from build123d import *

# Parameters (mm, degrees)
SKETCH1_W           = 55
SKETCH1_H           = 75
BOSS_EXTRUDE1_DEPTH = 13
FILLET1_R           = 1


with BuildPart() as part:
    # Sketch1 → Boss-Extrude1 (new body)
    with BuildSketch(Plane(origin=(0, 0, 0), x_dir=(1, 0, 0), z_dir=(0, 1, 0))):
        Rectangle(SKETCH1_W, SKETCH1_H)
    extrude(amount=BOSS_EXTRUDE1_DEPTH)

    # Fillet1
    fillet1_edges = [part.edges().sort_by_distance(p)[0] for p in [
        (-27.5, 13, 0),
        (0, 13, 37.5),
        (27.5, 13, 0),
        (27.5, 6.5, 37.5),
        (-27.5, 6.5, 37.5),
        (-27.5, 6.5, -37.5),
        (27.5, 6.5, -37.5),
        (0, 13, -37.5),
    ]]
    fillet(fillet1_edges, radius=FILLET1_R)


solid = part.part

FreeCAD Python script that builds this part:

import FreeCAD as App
import Part
import Sketcher

V = App.Vector
Q = App.Units.Quantity


def edges_at(feature, points):
    """Names of the edges that pass closest to the given points."""
    edges = feature.Shape.Edges
    near = lambda p: min(range(len(edges)), key=lambda i: edges[i].distToShape(Part.Vertex(*p))[0])
    return sorted({f"Edge{near(p) + 1}" for p in points})

doc = App.newDocument("Part")
body = doc.addObject("PartDesign::Body", "Body")

# Sketch on XZ plane
sketch1 = body.newObject("Sketcher::SketchObject", "Sketch")
sketch1.AttachmentSupport = (doc.getObject("XZ_Plane"), [""])
sketch1.MapMode = "FlatFace"
sketch1.addGeometry(Part.LineSegment(V(-27.5, -37.5, 0), V(-27.5, 37.5, 0)), False)
sketch1.addGeometry(Part.LineSegment(V(-27.5, 37.5, 0), V(27.5, 37.5, 0)), False)
sketch1.addGeometry(Part.LineSegment(V(27.5, 37.5, 0), V(27.5, -37.5, 0)), False)
sketch1.addGeometry(Part.LineSegment(V(27.5, -37.5, 0), V(-27.5, -37.5, 0)), False)
sketch1.addConstraint(Sketcher.Constraint("Coincident", 0, 2, 1, 1))
sketch1.addConstraint(Sketcher.Constraint("Coincident", 1, 2, 2, 1))
sketch1.addConstraint(Sketcher.Constraint("Coincident", 2, 2, 3, 1))
sketch1.addConstraint(Sketcher.Constraint("Coincident", 3, 2, 0, 1))
sketch1.addConstraint(Sketcher.Constraint("Vertical", 0))
sketch1.addConstraint(Sketcher.Constraint("Horizontal", 1))
sketch1.addConstraint(Sketcher.Constraint("Vertical", 2))
sketch1.addConstraint(Sketcher.Constraint("Horizontal", 3))
sketch1.addConstraint(Sketcher.Constraint("Symmetric", 0, 2, 2, 2, -1, 1))
sketch1.addConstraint(Sketcher.Constraint("DistanceX", 1, 1, 1, 2, Q("55 mm")))
sketch1.addConstraint(Sketcher.Constraint("DistanceY", 0, 1, 0, 2, Q("75 mm")))
pad1 = body.newObject("PartDesign::Pad", "Pad")
pad1.Profile = sketch1
pad1.Length = 13
pad1.Reversed = True
doc.recompute()

fillet = body.newObject("PartDesign::Fillet", "Fillet")
fillet.Base = (pad1, edges_at(pad1, [
    (-27.5, 13, 0),
    (0, 13, 37.5),
    (27.5, 13, 0),
    (27.5, 6.5, 37.5),
    (-27.5, 6.5, 37.5),
    (-27.5, 6.5, -37.5),
    (27.5, 6.5, -37.5),
    (0, 13, -37.5),
]))
fillet.Radius = 1

doc.recompute()
